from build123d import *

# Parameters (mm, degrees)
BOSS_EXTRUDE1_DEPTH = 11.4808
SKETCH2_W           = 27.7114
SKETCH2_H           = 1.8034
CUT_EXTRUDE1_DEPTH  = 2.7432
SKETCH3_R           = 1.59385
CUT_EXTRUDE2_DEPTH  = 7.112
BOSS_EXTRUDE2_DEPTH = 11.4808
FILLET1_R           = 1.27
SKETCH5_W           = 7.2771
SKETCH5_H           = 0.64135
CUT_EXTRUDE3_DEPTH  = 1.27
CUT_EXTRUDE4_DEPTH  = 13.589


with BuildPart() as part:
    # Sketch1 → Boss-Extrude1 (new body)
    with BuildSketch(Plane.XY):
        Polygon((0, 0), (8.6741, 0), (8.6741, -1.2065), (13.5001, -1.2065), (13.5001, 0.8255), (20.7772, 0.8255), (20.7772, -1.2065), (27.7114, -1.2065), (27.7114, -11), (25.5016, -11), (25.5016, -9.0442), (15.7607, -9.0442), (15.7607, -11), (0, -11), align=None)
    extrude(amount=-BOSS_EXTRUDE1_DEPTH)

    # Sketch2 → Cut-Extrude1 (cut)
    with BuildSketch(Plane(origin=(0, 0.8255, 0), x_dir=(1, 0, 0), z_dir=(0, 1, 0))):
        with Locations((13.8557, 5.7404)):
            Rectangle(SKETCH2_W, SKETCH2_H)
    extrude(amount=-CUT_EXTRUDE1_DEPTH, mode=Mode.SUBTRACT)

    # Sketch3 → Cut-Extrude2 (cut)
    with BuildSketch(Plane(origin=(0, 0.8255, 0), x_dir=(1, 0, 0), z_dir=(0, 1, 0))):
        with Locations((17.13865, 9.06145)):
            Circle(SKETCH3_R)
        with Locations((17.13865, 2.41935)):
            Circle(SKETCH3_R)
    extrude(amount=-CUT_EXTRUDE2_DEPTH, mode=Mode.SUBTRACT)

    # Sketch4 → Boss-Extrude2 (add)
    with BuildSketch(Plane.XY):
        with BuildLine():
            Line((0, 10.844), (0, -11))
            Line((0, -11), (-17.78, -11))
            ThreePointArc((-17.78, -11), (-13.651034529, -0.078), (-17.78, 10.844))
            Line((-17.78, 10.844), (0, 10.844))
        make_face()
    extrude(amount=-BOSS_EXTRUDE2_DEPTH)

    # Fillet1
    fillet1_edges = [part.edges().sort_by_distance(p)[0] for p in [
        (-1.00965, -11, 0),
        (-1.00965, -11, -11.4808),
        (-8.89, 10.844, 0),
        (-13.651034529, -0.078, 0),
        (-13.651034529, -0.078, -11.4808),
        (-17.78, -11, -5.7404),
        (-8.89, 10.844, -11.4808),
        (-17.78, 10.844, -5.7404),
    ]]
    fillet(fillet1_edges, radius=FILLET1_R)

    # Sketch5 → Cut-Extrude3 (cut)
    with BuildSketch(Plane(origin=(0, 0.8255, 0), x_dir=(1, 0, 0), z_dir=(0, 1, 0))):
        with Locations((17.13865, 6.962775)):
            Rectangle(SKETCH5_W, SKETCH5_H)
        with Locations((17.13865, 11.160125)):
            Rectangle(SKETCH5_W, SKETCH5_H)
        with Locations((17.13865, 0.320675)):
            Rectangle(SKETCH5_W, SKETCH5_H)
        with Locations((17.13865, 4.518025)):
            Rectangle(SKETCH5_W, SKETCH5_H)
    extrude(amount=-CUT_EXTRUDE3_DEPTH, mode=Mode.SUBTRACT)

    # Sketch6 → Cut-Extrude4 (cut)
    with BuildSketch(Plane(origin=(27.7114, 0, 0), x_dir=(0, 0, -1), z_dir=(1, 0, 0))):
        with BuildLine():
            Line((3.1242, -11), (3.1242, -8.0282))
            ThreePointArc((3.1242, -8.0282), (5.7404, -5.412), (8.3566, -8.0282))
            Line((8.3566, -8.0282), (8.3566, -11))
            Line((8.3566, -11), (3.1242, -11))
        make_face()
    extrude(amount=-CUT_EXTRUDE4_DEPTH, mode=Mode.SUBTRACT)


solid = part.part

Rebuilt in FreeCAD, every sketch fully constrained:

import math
import FreeCAD as App
import Part
import Sketcher
from FreeCAD import Vector
Q = App.Units.Quantity


def edges_at(feature, points):
    """Names of the edges that pass closest to the given points."""
    edges = feature.Shape.Edges
    near = lambda p: min(range(len(edges)), key=lambda i: edges[i].distToShape(Part.Vertex(*p))[0])
    return sorted({f"Edge{near(p) + 1}" for p in points})


def add_polygon(sketch, points):
    """Adds a closed chain of lines whose ends are joined by coincident constraints."""
    first, n = sketch.GeometryCount, len(points)
    for a, b in zip(points, points[1:] + points[:1]):
        sketch.addGeometry(Part.LineSegment(App.Vector(*a, 0), App.Vector(*b, 0)), False)
    for i in range(n):
        sketch.addConstraint(Sketcher.Constraint("Coincident", first + i, 2, first + (i + 1) % n, 1))

doc = App.newDocument("Part")
body = doc.addObject("PartDesign::Body", "Body")

# Sketch on XY plane
sketch1 = doc.addObject("Sketcher::SketchObject", "Sketch")
body.addObject(sketch1)
sketch1.AttachmentSupport = (doc.XY_Plane, [""])
sketch1.MapMode = "FlatFace"
add_polygon(sketch1, [(8.6741, 0), (0, 0), (0, -11), (15.7607, -11), (15.7607, -9.0442), (25.5016, -9.0442), (25.5016, -11), (27.7114, -11), (27.7114, -1.2065), (20.7772, -1.2065), (20.7772, 0.8255), (13.5001, 0.8255), (13.5001, -1.2065), (8.6741, -1.2065)])  # lines 0-13
sketch1.addConstraint([
    Sketcher.Constraint("Horizontal", 0),
    Sketcher.Constraint("Vertical", 1),
    Sketcher.Constraint("Horizontal", 2),
    Sketcher.Constraint("Vertical", 3),
    Sketcher.Constraint("Horizontal", 4),
    Sketcher.Constraint("Vertical", 5),
    Sketcher.Constraint("Horizontal", 6),
    Sketcher.Constraint("Vertical", 7),
    Sketcher.Constraint("Horizontal", 8),
    Sketcher.Constraint("Vertical", 9),
    Sketcher.Constraint("Horizontal", 10),
    Sketcher.Constraint("Vertical", 11),
    Sketcher.Constraint("Horizontal", 12),
    Sketcher.Constraint("Vertical", 13),
    Sketcher.Constraint("Coincident", 0, 2, -1, 1),
    Sketcher.Constraint("Horizontal", 2, 2, 5, 2),
    Sketcher.Constraint("Horizontal", 8, 2, 11, 2),
    Sketcher.Constraint("DistanceX", 12, 2, 12, 1, Q("0.19 in")),
    Sketcher.Constraint("DistanceY", 9, 1, 9, 2, Q("0.08 in")),
    Sketcher.Constraint("DistanceX", 6, 1, 6, 2, Q("0.087 in")),
    Sketcher.Constraint("DistanceX", 8, 2, 8, 1, Q("0.273 in")),
    Sketcher.Constraint("DistanceY", 3, 1, 3, 2, Q("0.077 in")),
    Sketcher.Constraint("DistanceX", 0, 2, 0, 1, Q("0.3415 in")),
    Sketcher.Constraint("DistanceX", 2, 1, 2, 2, Q("0.6205 in")),
    Sketcher.Constraint("DistanceX", 4, 1, 4, 2, Q("0.3835 in")),
    Sketcher.Constraint("DistanceY", 13, 1, 13, 2, Q("0.0475 in")),
    Sketcher.Constraint("DistanceY", 1, 2, 1, 1, 11.0),
])
pad1 = doc.addObject("PartDesign::Pad", "Pad")
body.addObject(pad1)
pad1.Profile = sketch1
pad1.Length = Q("0.452 in")
pad1.Reversed = True

# Sketch on XZ plane
sketch2 = doc.addObject("Sketcher::SketchObject", "Sketch001")
body.addObject(sketch2)
sketch2.AttachmentSupport = (doc.XZ_Plane, [""])
sketch2.MapMode = "FlatFace"
sketch2.AttachmentOffset = App.Placement(Vector(0, 0, -0.0325 * 25.4), App.Rotation())
add_polygon(sketch2, [(0, -6.6421), (0, -4.8387), (27.7114, -4.8387), (27.7114, -6.6421)])  # lines 0-3
sketch2.addConstraint([
    Sketcher.Constraint("Vertical", 0),
    Sketcher.Constraint("Horizontal", 1),
    Sketcher.Constraint("Vertical", 2),
    Sketcher.Constraint("Horizontal", 3),
    Sketcher.Constraint("PointOnObject", 0, 2, -2),
    Sketcher.Constraint("DistanceX", 1, 1, 1, 2, Q("1.091 in")),
    Sketcher.Constraint("DistanceY", 0, 1, 0, 2, Q("0.071 in")),
    Sketcher.Constraint("DistanceY", 0, 2, -1, 1, Q("0.1905 in")),
])
pocket1 = doc.addObject("PartDesign::Pocket", "Pocket")
body.addObject(pocket1)
pocket1.Profile = sketch2
pocket1.Length = Q("0.108 in")
pocket1.Reversed = True

# Sketch on XZ plane
sketch3 = doc.addObject("Sketcher::SketchObject", "Sketch002")
body.addObject(sketch3)
sketch3.AttachmentSupport = (doc.XZ_Plane, [""])
sketch3.MapMode = "FlatFace"
sketch3.AttachmentOffset = App.Placement(Vector(0, 0, -0.0325 * 25.4), App.Rotation())
sketch3.addGeometry([
    Part.Circle(Vector(17.13865, -9.06145, 0), Vector(0, 0, 1), 1.59385),
    Part.Circle(Vector(17.13865, -2.41935, 0), Vector(0, 0, 1), 1.59385),
], False)
sketch3.addConstraint([
    Sketcher.Constraint("Equal", 0, 1),
    Sketcher.Constraint("Vertical", 0, 3, 1, 3),
    Sketcher.Constraint("Diameter", 0, Q("0.1255 in")),
    Sketcher.Constraint("DistanceY", 0, 3, 1, 3, Q("0.2615 in")),
    Sketcher.Constraint("DistanceX", -1, 1, 0, 3, 17.13865),
    Sketcher.Constraint("DistanceY", 0, 3, -1, 1, 9.06145),
])
pocket2 = doc.addObject("PartDesign::Pocket", "Pocket001")
body.addObject(pocket2)
pocket2.Profile = sketch3
pocket2.Length = Q("0.28 in")
pocket2.Reversed = True

# Sketch on XY plane
sketch4 = doc.addObject("Sketcher::SketchObject", "Sketch003")
body.addObject(sketch4)
sketch4.AttachmentSupport = (doc.XY_Plane, [""])
sketch4.MapMode = "FlatFace"
sketch4.addGeometry([
    Part.LineSegment(Vector(0, -11, 0), Vector(0, 10.844, 0)),
    Part.LineSegment(Vector(0, 10.844, 0), Vector(-17.78, 10.844, 0)),
    Part.ArcOfCircle(Part.Circle(Vector(-30.161035, -0.078, 0), Vector(0, 0, 1), 16.51), math.radians(-41.41731), math.radians(41.41731)),
    Part.LineSegment(Vector(-17.78, -11, 0), Vector(0, -11, 0)),
], False)
sketch4.addConstraint([
    Sketcher.Constraint("Coincident", 0, 2, 1, 1),
    Sketcher.Constraint("Coincident", 1, 2, 2, 2),
    Sketcher.Constraint("Coincident", 2, 1, 3, 1),
    Sketcher.Constraint("Coincident", 3, 2, 0, 1),
    Sketcher.Constraint("Vertical", 0),
    Sketcher.Constraint("Horizontal", 1),
    Sketcher.Constraint("Horizontal", 3),
    Sketcher.Constraint("PointOnObject", 0, 2, -2),
    Sketcher.Constraint("Vertical", 1, 2, 2, 1),
    Sketcher.Constraint("Radius", 2, Q("0.65 in")),
    Sketcher.Constraint("DistanceX", 1, 2, 1, 1, Q("0.7 in")),
    Sketcher.Constraint("DistanceY", 0, 1, 0, 2, Q("0.86 in")),
    Sketcher.Constraint("DistanceY", 2, 3, -1, 1, 0.078),
])
pad2 = doc.addObject("PartDesign::Pad", "Pad001")
body.addObject(pad2)
pad2.Profile = sketch4
pad2.Length = Q("0.452 in")
pad2.Reversed = True
doc.recompute()

fillet = doc.addObject("PartDesign::Fillet", "Fillet")
body.addObject(fillet)
fillet.Base = (pad2, edges_at(pad2, [
    (-1.01, -11, 0),
    (-1.01, -11, -11.481),
    (-8.89, 10.844, 0),
    (-13.651, -0.078, 0),
    (-13.651, -0.078, -11.481),
    (-17.78, -11, -5.74),
    (-8.89, 10.844, -11.481),
    (-17.78, 10.844, -5.74),
]))
fillet.Radius = Q("0.05 in")

# Sketch on XZ plane
sketch5 = doc.addObject("Sketcher::SketchObject", "Sketch004")
body.addObject(sketch5)
sketch5.AttachmentSupport = (doc.XZ_Plane, [""])
sketch5.MapMode = "FlatFace"
sketch5.AttachmentOffset = App.Placement(Vector(0, 0, -0.0325 * 25.4), App.Rotation())
add_polygon(sketch5, [(13.5001, -7.28345), (13.5001, -6.6421), (20.7772, -6.6421), (20.7772, -7.28345)])  # lines 0-3
add_polygon(sketch5, [(13.5001, -11.4808), (13.5001, -10.83945), (20.7772, -10.83945), (20.7772, -11.4808)])  # lines 4-7
add_polygon(sketch5, [(13.5001, -0.64135), (13.5001, 0), (20.7772, 0), (20.7772, -0.64135)])  # lines 8-11
add_polygon(sketch5, [(13.5001, -4.8387), (13.5001, -4.19735), (20.7772, -4.19735), (20.7772, -4.8387)])  # lines 12-15
sketch5.addConstraint([
    Sketcher.Constraint("Vertical", 0),
    Sketcher.Constraint("Horizontal", 1),
    Sketcher.Constraint("Vertical", 2),
    Sketcher.Constraint("Horizontal", 3),
    Sketcher.Constraint("Vertical", 4),
    Sketcher.Constraint("Horizontal", 5),
    Sketcher.Constraint("Vertical", 6),
    Sketcher.Constraint("Horizontal", 7),
    Sketcher.Constraint("Vertical", 8),
    Sketcher.Constraint("Horizontal", 9),
    Sketcher.Constraint("Vertical", 10),
    Sketcher.Constraint("Horizontal", 11),
    Sketcher.Constraint("Vertical", 12),
    Sketcher.Constraint("Horizontal", 13),
    Sketcher.Constraint("Vertical", 14),
    Sketcher.Constraint("Horizontal", 15),
    Sketcher.Constraint("PointOnObject", 8, 2, -1),
    Sketcher.Constraint("Vertical", 3, 2, 4, 2),
    Sketcher.Constraint("Vertical", 2, 2, 5, 2),
    Sketcher.Constraint("Vertical", 7, 2, 8, 2),
    Sketcher.Constraint("Vertical", 6, 2, 9, 2),
    Sketcher.Constraint("Vertical", 11, 2, 12, 2),
    Sketcher.Constraint("Vertical", 10, 2, 13, 2),
    Sketcher.Constraint("Equal", 2, 4),
    Sketcher.Constraint("Equal", 6, 8),
    Sketcher.Constraint("Equal", 10, 12),
    Sketcher.Constraint("DistanceY", 4, 2, 3, 2, Q("0.14 in")),
    Sketcher.Constraint("DistanceY", 12, 2, 11, 2, Q("0.14 in")),
    Sketcher.Constraint("DistanceX", 1, 1, 1, 2, Q("0.2865 in")),
    Sketcher.Constraint("DistanceX", -1, 1, 1, 2, Q("0.818 in")),
    Sketcher.Constraint("DistanceY", 6, 2, -1, 1, Q("0.452 in")),
    Sketcher.Constraint("DistanceY", 1, 2, 14, 2, Q("0.071 in")),
])
pocket3 = doc.addObject("PartDesign::Pocket", "Pocket002")
body.addObject(pocket3)
pocket3.Profile = sketch5
pocket3.Length = Q("0.05 in")
pocket3.Reversed = True

# Sketch on YZ plane
sketch6 = doc.addObject("Sketcher::SketchObject", "Sketch005")
body.addObject(sketch6)
sketch6.AttachmentSupport = (doc.YZ_Plane, [""])
sketch6.MapMode = "FlatFace"
sketch6.AttachmentOffset = App.Placement(Vector(0, 0, 1.091 * 25.4), App.Rotation())
sketch6.addGeometry([
    Part.LineSegment(Vector(-8.0282, -3.1242, 0), Vector(-11, -3.1242, 0)),
    Part.LineSegment(Vector(-11, -3.1242, 0), Vector(-11, -8.3566, 0)),
    Part.LineSegment(Vector(-11, -8.3566, 0), Vector(-8.0282, -8.3566, 0)),
    Part.ArcOfCircle(Part.Circle(Vector(-8.0282, -5.7404, 0), Vector(0, 0, 1), 2.6162), math.radians(-90), math.radians(90)),
], False)
sketch6.addConstraint([
    Sketcher.Constraint("Coincident", 0, 2, 1, 1),
    Sketcher.Constraint("Coincident", 1, 2, 2, 1),
    Sketcher.Constraint("Tangent", 2, 2, 3, 1),
    Sketcher.Constraint("Tangent", 3, 2, 0, 1),
    Sketcher.Constraint("Horizontal", 0),
    Sketcher.Constraint("Vertical", 1),
    Sketcher.Constraint("Horizontal", 2),
    Sketcher.Constraint("Radius", 3, Q("0.103 in")),
    Sketcher.Constraint("DistanceX", 0, 2, 0, 1, Q("0.117 in")),
    Sketcher.Constraint("DistanceY", 3, 3, -1, 1, Q("0.226 in")),
    Sketcher.Constraint("DistanceX", 3, 3, -1, 1, 8.0282),
])
pocket4 = doc.addObject("PartDesign::Pocket", "Pocket003")
body.addObject(pocket4)
pocket4.Profile = sketch6
pocket4.Length = Q("0.535 in")

doc.recompute()
